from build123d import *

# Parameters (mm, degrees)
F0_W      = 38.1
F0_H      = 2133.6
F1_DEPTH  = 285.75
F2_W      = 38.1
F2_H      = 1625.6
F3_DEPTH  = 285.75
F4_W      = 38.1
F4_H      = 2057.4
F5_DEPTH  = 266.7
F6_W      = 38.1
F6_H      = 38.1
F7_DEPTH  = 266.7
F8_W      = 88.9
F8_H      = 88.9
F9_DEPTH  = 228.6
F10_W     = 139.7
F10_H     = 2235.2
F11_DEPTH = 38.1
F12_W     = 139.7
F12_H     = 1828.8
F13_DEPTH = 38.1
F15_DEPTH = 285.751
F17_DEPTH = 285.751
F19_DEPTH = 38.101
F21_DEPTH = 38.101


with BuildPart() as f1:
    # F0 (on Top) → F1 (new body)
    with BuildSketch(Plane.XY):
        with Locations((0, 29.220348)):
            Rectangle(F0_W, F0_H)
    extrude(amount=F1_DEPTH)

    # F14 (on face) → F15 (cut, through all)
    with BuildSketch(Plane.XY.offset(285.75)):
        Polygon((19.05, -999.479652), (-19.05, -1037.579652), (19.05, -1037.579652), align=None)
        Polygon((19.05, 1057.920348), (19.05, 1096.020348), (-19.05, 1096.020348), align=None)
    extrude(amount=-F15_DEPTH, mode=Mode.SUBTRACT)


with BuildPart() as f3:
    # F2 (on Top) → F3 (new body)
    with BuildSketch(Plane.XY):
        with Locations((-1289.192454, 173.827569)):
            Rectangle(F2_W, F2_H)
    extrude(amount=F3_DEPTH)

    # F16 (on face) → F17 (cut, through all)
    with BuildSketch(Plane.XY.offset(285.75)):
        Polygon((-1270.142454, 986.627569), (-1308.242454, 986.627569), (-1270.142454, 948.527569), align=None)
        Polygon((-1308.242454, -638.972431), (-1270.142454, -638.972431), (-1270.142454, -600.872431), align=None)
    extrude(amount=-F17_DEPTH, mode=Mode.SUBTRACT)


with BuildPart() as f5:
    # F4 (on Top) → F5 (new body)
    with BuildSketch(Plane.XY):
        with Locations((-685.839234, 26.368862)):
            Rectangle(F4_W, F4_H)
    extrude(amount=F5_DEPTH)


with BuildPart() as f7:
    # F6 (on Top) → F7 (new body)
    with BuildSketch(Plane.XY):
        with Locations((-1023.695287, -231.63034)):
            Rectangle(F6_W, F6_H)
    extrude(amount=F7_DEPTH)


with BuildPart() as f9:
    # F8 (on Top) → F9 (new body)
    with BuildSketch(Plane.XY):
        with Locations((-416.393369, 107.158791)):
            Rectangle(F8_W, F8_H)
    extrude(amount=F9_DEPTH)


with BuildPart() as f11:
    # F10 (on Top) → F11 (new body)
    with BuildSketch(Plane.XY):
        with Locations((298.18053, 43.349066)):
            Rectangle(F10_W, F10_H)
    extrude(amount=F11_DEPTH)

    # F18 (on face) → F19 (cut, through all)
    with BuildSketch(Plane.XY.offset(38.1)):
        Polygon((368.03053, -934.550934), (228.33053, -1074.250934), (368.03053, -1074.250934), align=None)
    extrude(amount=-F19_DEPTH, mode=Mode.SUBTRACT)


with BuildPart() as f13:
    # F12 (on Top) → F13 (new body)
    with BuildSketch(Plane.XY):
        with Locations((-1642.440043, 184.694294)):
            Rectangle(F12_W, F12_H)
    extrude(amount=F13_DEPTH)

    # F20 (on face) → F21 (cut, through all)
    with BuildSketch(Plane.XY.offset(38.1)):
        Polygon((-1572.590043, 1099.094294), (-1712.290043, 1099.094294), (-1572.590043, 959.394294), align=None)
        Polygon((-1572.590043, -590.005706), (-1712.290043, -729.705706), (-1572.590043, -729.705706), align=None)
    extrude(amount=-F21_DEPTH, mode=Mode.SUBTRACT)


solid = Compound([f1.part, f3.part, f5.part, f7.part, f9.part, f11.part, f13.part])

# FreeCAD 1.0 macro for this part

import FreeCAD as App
import Part
import Sketcher
from FreeCAD import Vector
Q = App.Units.Quantity

doc = App.newDocument("Part")
params = doc.addObject("Spreadsheet::Sheet", "Params")
for row, (alias, value) in enumerate([
    ("sketch1_height", "84 in"),
    ("sketch1_width", "1.5 in"),
    ("pad1_length", "11.25 in"),
    ("sketch2_width", "1.5 in"),
    ("sketch3_height", "64 in"),
    ("sketch3_width", "1.5 in"),
    ("pad2_length", "11.25 in"),
    ("sketch4_width", "1.5 in"),
    ("sketch5_height", "81 in"),
    ("sketch5_width", "1.5 in"),
    ("pad3_length", "10.5 in"),
    ("sketch6_width", "1.5 in"),
    ("pad4_length", "10.5 in"),
    ("sketch7_width", "3.5 in"),
    ("pad5_length", "9 in"),
    ("sketch8_height", "88 in"),
    ("sketch8_width", "5.5 in"),
    ("pad6_length", "1.5 in"),
    ("sketch9_width", "5.5 in"),
    ("sketch10_height", "72 in"),
    ("sketch10_width", "5.5 in"),
    ("pad7_length", "1.5 in"),
    ("sketch11_width", "5.5 in"),
], start=1):
    params.set(f"A{row}", alias)
    params.set(f"B{row}", "=" + value)
    params.setAlias(f"B{row}", alias)

body = doc.addObject("PartDesign::Body", "Body")

# Sketch on XY plane
sketch1 = doc.addObject("Sketcher::SketchObject", "Sketch")
body.addObject(sketch1)
sketch1.AttachmentSupport = (doc.XY_Plane, [""])
sketch1.MapMode = "FlatFace"
sketch1.addGeometry(Part.LineSegment(Vector(-19, 1096, 0), Vector(-19, -1038, 0)), False)
sketch1.addGeometry(Part.LineSegment(Vector(-19, -1038, 0), Vector(19, -1038, 0)), False)
sketch1.addGeometry(Part.LineSegment(Vector(19, -1038, 0), Vector(19, 1096, 0)), False)
sketch1.addGeometry(Part.LineSegment(Vector(19, 1096, 0), Vector(-19, 1096, 0)), False)
sketch1.addConstraint(Sketcher.Constraint("Coincident", 0, 2, 1, 1))
sketch1.addConstraint(Sketcher.Constraint("Coincident", 1, 2, 2, 1))
sketch1.addConstraint(Sketcher.Constraint("Coincident", 2, 2, 3, 1))
sketch1.addConstraint(Sketcher.Constraint("Coincident", 3, 2, 0, 1))
sketch1.addConstraint(Sketcher.Constraint("Vertical", 0))
sketch1.addConstraint(Sketcher.Constraint("Horizontal", 1))
sketch1.addConstraint(Sketcher.Constraint("Vertical", 2))
sketch1.addConstraint(Sketcher.Constraint("Horizontal", 3))
sketch1.addConstraint(Sketcher.Constraint("DistanceY", 0, 2, 0, 1, Q("84 in")))
sketch1.addConstraint(Sketcher.Constraint("DistanceX", 1, 1, 1, 2, Q("1.5 in")))
sketch1.addConstraint(Sketcher.Constraint("DistanceX", 0, 2, -1, 1, Q("0.75 in")))
sketch1.addConstraint(Sketcher.Constraint("DistanceY", 0, 2, -1, 1, 1037.579652))
sketch1.setExpression("Constraints[8]", "Params.sketch1_height")
sketch1.setExpression("Constraints[9]", "Params.sketch1_width")
pad1 = doc.addObject("PartDesign::Pad", "Pad")
body.addObject(pad1)
pad1.Profile = sketch1
pad1.setExpression("Length", "Params.pad1_length")

# Sketch on XY plane
sketch2 = doc.addObject("Sketcher::SketchObject", "Sketch001")
body.addObject(sketch2)
sketch2.AttachmentSupport = (doc.XY_Plane, [""])
sketch2.MapMode = "FlatFace"
sketch2.AttachmentOffset = App.Placement(Vector(0, 0, 11.25 * 25.4), App.Rotation())
sketch2.addGeometry(Part.LineSegment(Vector(19, -999, 0), Vector(-19, -1038, 0)), False)
sketch2.addGeometry(Part.LineSegment(Vector(-19, -1038, 0), Vector(19, -1038, 0)), False)
sketch2.addGeometry(Part.LineSegment(Vector(19, -1038, 0), Vector(19, -999, 0)), False)
sketch2.addGeometry(Part.LineSegment(Vector(19, 1058, 0), Vector(19, 1096, 0)), False)
sketch2.addGeometry(Part.LineSegment(Vector(19, 1096, 0), Vector(-19, 1096, 0)), False)
sketch2.addGeometry(Part.LineSegment(Vector(-19, 1096, 0), Vector(19, 1058, 0)), False)
sketch2.addConstraint(Sketcher.Constraint("Coincident", 0, 2, 1, 1))
sketch2.addConstraint(Sketcher.Constraint("Coincident", 1, 2, 2, 1))
sketch2.addConstraint(Sketcher.Constraint("Coincident", 2, 2, 0, 1))
sketch2.addConstraint(Sketcher.Constraint("Coincident", 3, 2, 4, 1))
sketch2.addConstraint(Sketcher.Constraint("Coincident", 4, 2, 5, 1))
sketch2.addConstraint(Sketcher.Constraint("Coincident", 5, 2, 3, 1))
sketch2.addConstraint(Sketcher.Constraint("Horizontal", 1))
sketch2.addConstraint(Sketcher.Constraint("Vertical", 2))
sketch2.addConstraint(Sketcher.Constraint("Vertical", 3))
sketch2.addConstraint(Sketcher.Constraint("Horizontal", 4))
sketch2.addConstraint(Sketcher.Constraint("Perpendicular", 0, 5))
sketch2.addConstraint(Sketcher.Constraint("Vertical", 2, 2, 3, 2))
sketch2.addConstraint(Sketcher.Constraint("Vertical", 0, 2, 4, 2))
sketch2.addConstraint(Sketcher.Constraint("Equal", 4, 2))
sketch2.addConstraint(Sketcher.Constraint("DistanceX", 1, 1, 1, 2, Q("1.5 in")))
sketch2.addConstraint(Sketcher.Constraint("DistanceY", 1, 2, 3, 2, Q("84 in")))
sketch2.addConstraint(Sketcher.Constraint("DistanceX", 0, 2, -1, 1, Q("0.75 in")))
sketch2.addConstraint(Sketcher.Constraint("DistanceY", 0, 2, -1, 1, 1037.579652))
sketch2.setExpression("Constraints[14]", "Params.sketch2_width")
pocket1 = doc.addObject("PartDesign::Pocket", "Pocket")
body.addObject(pocket1)
pocket1.Profile = sketch2
pocket1.Type = "ThroughAll"
body2 = doc.addObject("PartDesign::Body", "Body001")

# Sketch on XY plane
sketch3 = doc.addObject("Sketcher::SketchObject", "Sketch002")
body2.addObject(sketch3)
sketch3.AttachmentSupport = (doc.getObject("XY_Plane001"), [""])
sketch3.MapMode = "FlatFace"
sketch3.addGeometry(Part.LineSegment(Vector(-1308, 987, 0), Vector(-1308, -639, 0)), False)
sketch3.addGeometry(Part.LineSegment(Vector(-1308, -639, 0), Vector(-1270, -639, 0)), False)
sketch3.addGeometry(Part.LineSegment(Vector(-1270, -639, 0), Vector(-1270, 987, 0)), False)
sketch3.addGeometry(Part.LineSegment(Vector(-1270, 987, 0), Vector(-1308, 987, 0)), False)
sketch3.addConstraint(Sketcher.Constraint("Coincident", 0, 2, 1, 1))
sketch3.addConstraint(Sketcher.Constraint("Coincident", 1, 2, 2, 1))
sketch3.addConstraint(Sketcher.Constraint("Coincident", 2, 2, 3, 1))
sketch3.addConstraint(Sketcher.Constraint("Coincident", 3, 2, 0, 1))
sketch3.addConstraint(Sketcher.Constraint("Vertical", 0))
sketch3.addConstraint(Sketcher.Constraint("Horizontal", 1))
sketch3.addConstraint(Sketcher.Constraint("Vertical", 2))
sketch3.addConstraint(Sketcher.Constraint("Horizontal", 3))
sketch3.addConstraint(Sketcher.Constraint("DistanceY", 0, 2, 0, 1, Q("64 in")))
sketch3.addConstraint(Sketcher.Constraint("DistanceX", 1, 1, 1, 2, Q("1.5 in")))
sketch3.addConstraint(Sketcher.Constraint("DistanceY", 0, 2, -1, 1, 638.972431))
sketch3.addConstraint(Sketcher.Constraint("DistanceX", 0, 2, -1, 1, 1308.242454))
sketch3.setExpression("Constraints[8]", "Params.sketch3_height")
sketch3.setExpression("Constraints[9]", "Params.sketch3_width")
pad2 = doc.addObject("PartDesign::Pad", "Pad001")
body2.addObject(pad2)
pad2.Profile = sketch3
pad2.setExpression("Length", "Params.pad2_length")

# Sketch on XY plane
sketch4 = doc.addObject("Sketcher::SketchObject", "Sketch003")
body2.addObject(sketch4)
sketch4.AttachmentSupport = (doc.getObject("XY_Plane001"), [""])
sketch4.MapMode = "FlatFace"
sketch4.AttachmentOffset = App.Placement(Vector(0, 0, 11.25 * 25.4), App.Rotation())
sketch4.addGeometry(Part.LineSegment(Vector(-1270, 987, 0), Vector(-1308, 987, 0)), False)
sketch4.addGeometry(Part.LineSegment(Vector(-1308, 987, 0), Vector(-1270, 949, 0)), False)
sketch4.addGeometry(Part.LineSegment(Vector(-1270, 949, 0), Vector(-1270, 987, 0)), False)
sketch4.addGeometry(Part.LineSegment(Vector(-1308, -639, 0), Vector(-1270, -639, 0)), False)
sketch4.addGeometry(Part.LineSegment(Vector(-1270, -639, 0), Vector(-1270, -601, 0)), False)
sketch4.addGeometry(Part.LineSegment(Vector(-1270, -601, 0), Vector(-1308, -639, 0)), False)
sketch4.addConstraint(Sketcher.Constraint("Coincident", 0, 2, 1, 1))
sketch4.addConstraint(Sketcher.Constraint("Coincident", 1, 2, 2, 1))
sketch4.addConstraint(Sketcher.Constraint("Coincident", 2, 2, 0, 1))
sketch4.addConstraint(Sketcher.Constraint("Coincident", 3, 2, 4, 1))
sketch4.addConstraint(Sketcher.Constraint("Coincident", 4, 2, 5, 1))
sketch4.addConstraint(Sketcher.Constraint("Coincident", 5, 2, 3, 1))
sketch4.addConstraint(Sketcher.Constraint("Horizontal", 0))
sketch4.addConstraint(Sketcher.Constraint("Vertical", 2))
sketch4.addConstraint(Sketcher.Constraint("Horizontal", 3))
sketch4.addConstraint(Sketcher.Constraint("Vertical", 4))
sketch4.addConstraint(Sketcher.Constraint("Perpendicular", 1, 5))
sketch4.addConstraint(Sketcher.Constraint("Vertical", 2, 2, 3, 2))
sketch4.addConstraint(Sketcher.Constraint("Vertical", 0, 2, 5, 2))
sketch4.addConstraint(Sketcher.Constraint("Equal", 3, 2))
sketch4.addConstraint(Sketcher.Constraint("DistanceX", 0, 2, 0, 1, Q("1.5 in")))
sketch4.addConstraint(Sketcher.Constraint("DistanceY", 3, 2, 2, 2, Q("64 in")))
sketch4.addConstraint(Sketcher.Constraint("DistanceY", -1, 1, 0, 2, 986.627569))
sketch4.addConstraint(Sketcher.Constraint("DistanceX", 0, 2, -1, 1, 1308.242454))
sketch4.setExpression("Constraints[14]", "Params.sketch4_width")
pocket2 = doc.addObject("PartDesign::Pocket", "Pocket001")
body2.addObject(pocket2)
pocket2.Profile = sketch4
pocket2.Type = "ThroughAll"
body3 = doc.addObject("PartDesign::Body", "Body002")

# Sketch on XY plane
sketch5 = doc.addObject("Sketcher::SketchObject", "Sketch004")
body3.addObject(sketch5)
sketch5.AttachmentSupport = (doc.getObject("XY_Plane002"), [""])
sketch5.MapMode = "FlatFace"
sketch5.addGeometry(Part.LineSegment(Vector(-705, 1055, 0), Vector(-705, -1002, 0)), False)
sketch5.addGeometry(Part.LineSegment(Vector(-705, -1002, 0), Vector(-667, -1002, 0)), False)
sketch5.addGeometry(Part.LineSegment(Vector(-667, -1002, 0), Vector(-667, 1055, 0)), False)
sketch5.addGeometry(Part.LineSegment(Vector(-667, 1055, 0), Vector(-705, 1055, 0)), False)
sketch5.addConstraint(Sketcher.Constraint("Coincident", 0, 2, 1, 1))
sketch5.addConstraint(Sketcher.Constraint("Coincident", 1, 2, 2, 1))
sketch5.addConstraint(Sketcher.Constraint("Coincident", 2, 2, 3, 1))
sketch5.addConstraint(Sketcher.Constraint("Coincident", 3, 2, 0, 1))
sketch5.addConstraint(Sketcher.Constraint("Vertical", 0))
sketch5.addConstraint(Sketcher.Constraint("Horizontal", 1))
sketch5.addConstraint(Sketcher.Constraint("Vertical", 2))
sketch5.addConstraint(Sketcher.Constraint("Horizontal", 3))
sketch5.addConstraint(Sketcher.Constraint("DistanceY", 0, 2, 0, 1, Q("81 in")))
sketch5.addConstraint(Sketcher.Constraint("DistanceX", 1, 1, 1, 2, Q("1.5 in")))
sketch5.addConstraint(Sketcher.Constraint("DistanceY", 0, 2, -1, 1, 1002.331138))
sketch5.addConstraint(Sketcher.Constraint("DistanceX", 0, 2, -1, 1, 704.889234))
sketch5.setExpression("Constraints[8]", "Params.sketch5_height")
sketch5.setExpression("Constraints[9]", "Params.sketch5_width")
pad3 = doc.addObject("PartDesign::Pad", "Pad002")
body3.addObject(pad3)
pad3.Profile = sketch5
pad3.setExpression("Length", "Params.pad3_length")
body4 = doc.addObject("PartDesign::Body", "Body003")

# Sketch on XY plane
sketch6 = doc.addObject("Sketcher::SketchObject", "Sketch005")
body4.addObject(sketch6)
sketch6.AttachmentSupport = (doc.getObject("XY_Plane003"), [""])
sketch6.MapMode = "FlatFace"
sketch6.addGeometry(Part.LineSegment(Vector(-1043, -213, 0), Vector(-1043, -251, 0)), False)
sketch6.addGeometry(Part.LineSegment(Vector(-1043, -251, 0), Vector(-1005, -251, 0)), False)
sketch6.addGeometry(Part.LineSegment(Vector(-1005, -251, 0), Vector(-1005, -213, 0)), False)
sketch6.addGeometry(Part.LineSegment(Vector(-1005, -213, 0), Vector(-1043, -213, 0)), False)
sketch6.addConstraint(Sketcher.Constraint("Coincident", 0, 2, 1, 1))
sketch6.addConstraint(Sketcher.Constraint("Coincident", 1, 2, 2, 1))
sketch6.addConstraint(Sketcher.Constraint("Coincident", 2, 2, 3, 1))
sketch6.addConstraint(Sketcher.Constraint("Coincident", 3, 2, 0, 1))
sketch6.addConstraint(Sketcher.Constraint("Vertical", 0))
sketch6.addConstraint(Sketcher.Constraint("Horizontal", 1))
sketch6.addConstraint(Sketcher.Constraint("Vertical", 2))
sketch6.addConstraint(Sketcher.Constraint("Horizontal", 3))
sketch6.addConstraint(Sketcher.Constraint("Equal", 3, 0))
sketch6.addConstraint(Sketcher.Constraint("DistanceX", 1, 1, 1, 2, Q("1.5 in")))
sketch6.addConstraint(Sketcher.Constraint("DistanceY", 0, 2, -1, 1, 250.68034))
sketch6.addConstraint(Sketcher.Constraint("DistanceX", 0, 2, -1, 1, 1042.745287))
sketch6.setExpression("Constraints[9]", "Params.sketch6_width")
pad4 = doc.addObject("PartDesign::Pad", "Pad003")
body4.addObject(pad4)
pad4.Profile = sketch6
pad4.setExpression("Length", "Params.pad4_length")
body5 = doc.addObject("PartDesign::Body", "Body004")

# Sketch on XY plane
sketch7 = doc.addObject("Sketcher::SketchObject", "Sketch006")
body5.addObject(sketch7)
sketch7.AttachmentSupport = (doc.getObject("XY_Plane004"), [""])
sketch7.MapMode = "FlatFace"
sketch7.addGeometry(Part.LineSegment(Vector(-461, 152, 0), Vector(-461, 63, 0)), False)
sketch7.addGeometry(Part.LineSegment(Vector(-461, 63, 0), Vector(-372, 63, 0)), False)
sketch7.addGeometry(Part.LineSegment(Vector(-372, 63, 0), Vector(-372, 152, 0)), False)
sketch7.addGeometry(Part.LineSegment(Vector(-372, 152, 0), Vector(-461, 152, 0)), False)
sketch7.addConstraint(Sketcher.Constraint("Coincident", 0, 2, 1, 1))
sketch7.addConstraint(Sketcher.Constraint("Coincident", 1, 2, 2, 1))
sketch7.addConstraint(Sketcher.Constraint("Coincident", 2, 2, 3, 1))
sketch7.addConstraint(Sketcher.Constraint("Coincident", 3, 2, 0, 1))
sketch7.addConstraint(Sketcher.Constraint("Vertical", 0))
sketch7.addConstraint(Sketcher.Constraint("Horizontal", 1))
sketch7.addConstraint(Sketcher.Constraint("Vertical", 2))
sketch7.addConstraint(Sketcher.Constraint("Horizontal", 3))
sketch7.addConstraint(Sketcher.Constraint("Equal", 3, 0))
sketch7.addConstraint(Sketcher.Constraint("DistanceX", 1, 1, 1, 2, Q("3.5 in")))
sketch7.addConstraint(Sketcher.Constraint("DistanceX", 0, 2, -1, 1, 460.843369))
sketch7.addConstraint(Sketcher.Constraint("DistanceY", -1, 1, 0, 2, 62.708791))
sketch7.setExpression("Constraints[9]", "Params.sketch7_width")
pad5 = doc.addObject("PartDesign::Pad", "Pad004")
body5.addObject(pad5)
pad5.Profile = sketch7
pad5.setExpression("Length", "Params.pad5_length")
body6 = doc.addObject("PartDesign::Body", "Body005")

# Sketch on XY plane
sketch8 = doc.addObject("Sketcher::SketchObject", "Sketch007")
body6.addObject(sketch8)
sketch8.AttachmentSupport = (doc.getObject("XY_Plane005"), [""])
sketch8.MapMode = "FlatFace"
sketch8.addGeometry(Part.LineSegment(Vector(228, 1161, 0), Vector(228, -1074, 0)), False)
sketch8.addGeometry(Part.LineSegment(Vector(228, -1074, 0), Vector(368, -1074, 0)), False)
sketch8.addGeometry(Part.LineSegment(Vector(368, -1074, 0), Vector(368, 1161, 0)), False)
sketch8.addGeometry(Part.LineSegment(Vector(368, 1161, 0), Vector(228, 1161, 0)), False)
sketch8.addConstraint(Sketcher.Constraint("Coincident", 0, 2, 1, 1))
sketch8.addConstraint(Sketcher.Constraint("Coincident", 1, 2, 2, 1))
sketch8.addConstraint(Sketcher.Constraint("Coincident", 2, 2, 3, 1))
sketch8.addConstraint(Sketcher.Constraint("Coincident", 3, 2, 0, 1))
sketch8.addConstraint(Sketcher.Constraint("Vertical", 0))
sketch8.addConstraint(Sketcher.Constraint("Horizontal", 1))
sketch8.addConstraint(Sketcher.Constraint("Vertical", 2))
sketch8.addConstraint(Sketcher.Constraint("Horizontal", 3))
sketch8.addConstraint(Sketcher.Constraint("DistanceY", 0, 2, 0, 1, Q("88 in")))
sketch8.addConstraint(Sketcher.Constraint("DistanceX", 1, 1, 1, 2, Q("5.5 in")))
sketch8.addConstraint(Sketcher.Constraint("DistanceX", -1, 1, 0, 2, 228.33053))
sketch8.addConstraint(Sketcher.Constraint("DistanceY", 0, 2, -1, 1, 1074.250934))
sketch8.setExpression("Constraints[8]", "Params.sketch8_height")
sketch8.setExpression("Constraints[9]", "Params.sketch8_width")
pad6 = doc.addObject("PartDesign::Pad", "Pad005")
body6.addObject(pad6)
pad6.Profile = sketch8
pad6.setExpression("Length", "Params.pad6_length")

# Sketch on XY plane
sketch9 = doc.addObject("Sketcher::SketchObject", "Sketch008")
body6.addObject(sketch9)
sketch9.AttachmentSupport = (doc.getObject("XY_Plane005"), [""])
sketch9.MapMode = "FlatFace"
sketch9.AttachmentOffset = App.Placement(Vector(0, 0, 1.5 * 25.4), App.Rotation())
sketch9.addGeometry(Part.LineSegment(Vector(368, -935, 0), Vector(228, -1074, 0)), False)
sketch9.addGeometry(Part.LineSegment(Vector(228, -1074, 0), Vector(368, -1074, 0)), False)
sketch9.addGeometry(Part.LineSegment(Vector(368, -1074, 0), Vector(368, -935, 0)), False)
sketch9.addConstraint(Sketcher.Constraint("Coincident", 0, 2, 1, 1))
sketch9.addConstraint(Sketcher.Constraint("Coincident", 1, 2, 2, 1))
sketch9.addConstraint(Sketcher.Constraint("Coincident", 2, 2, 0, 1))
sketch9.addConstraint(Sketcher.Constraint("Horizontal", 1))
sketch9.addConstraint(Sketcher.Constraint("Vertical", 2))
sketch9.addConstraint(Sketcher.Constraint("Equal", 1, 2))
sketch9.addConstraint(Sketcher.Constraint("DistanceX", 1, 1, 1, 2, Q("5.5 in")))
sketch9.addConstraint(Sketcher.Constraint("DistanceX", -1, 1, 0, 2, 228.33053))
sketch9.addConstraint(Sketcher.Constraint("DistanceY", 0, 2, -1, 1, 1074.250934))
sketch9.setExpression("Constraints[6]", "Params.sketch9_width")
pocket3 = doc.addObject("PartDesign::Pocket", "Pocket002")
body6.addObject(pocket3)
pocket3.Profile = sketch9
pocket3.Type = "ThroughAll"
body7 = doc.addObject("PartDesign::Body", "Body006")

# Sketch on XY plane
sketch10 = doc.addObject("Sketcher::SketchObject", "Sketch009")
body7.addObject(sketch10)
sketch10.AttachmentSupport = (doc.getObject("XY_Plane006"), [""])
sketch10.MapMode = "FlatFace"
sketch10.addGeometry(Part.LineSegment(Vector(-1712, 1099, 0), Vector(-1712, -730, 0)), False)
sketch10.addGeometry(Part.LineSegment(Vector(-1712, -730, 0), Vector(-1573, -730, 0)), False)
sketch10.addGeometry(Part.LineSegment(Vector(-1573, -730, 0), Vector(-1573, 1099, 0)), False)
sketch10.addGeometry(Part.LineSegment(Vector(-1573, 1099, 0), Vector(-1712, 1099, 0)), False)
sketch10.addConstraint(Sketcher.Constraint("Coincident", 0, 2, 1, 1))
sketch10.addConstraint(Sketcher.Constraint("Coincident", 1, 2, 2, 1))
sketch10.addConstraint(Sketcher.Constraint("Coincident", 2, 2, 3, 1))
sketch10.addConstraint(Sketcher.Constraint("Coincident", 3, 2, 0, 1))
sketch10.addConstraint(Sketcher.Constraint("Vertical", 0))
sketch10.addConstraint(Sketcher.Constraint("Horizontal", 1))
sketch10.addConstraint(Sketcher.Constraint("Vertical", 2))
sketch10.addConstraint(Sketcher.Constraint("Horizontal", 3))
sketch10.addConstraint(Sketcher.Constraint("DistanceY", 0, 2, 0, 1, Q("72 in")))
sketch10.addConstraint(Sketcher.Constraint("DistanceX", 1, 1, 1, 2, Q("5.5 in")))
sketch10.addConstraint(Sketcher.Constraint("DistanceX", 0, 2, -1, 1, 1712.290043))
sketch10.addConstraint(Sketcher.Constraint("DistanceY", 0, 2, -1, 1, 729.705706))
sketch10.setExpression("Constraints[8]", "Params.sketch10_height")
sketch10.setExpression("Constraints[9]", "Params.sketch10_width")
pad7 = doc.addObject("PartDesign::Pad", "Pad006")
body7.addObject(pad7)
pad7.Profile = sketch10
pad7.setExpression("Length", "Params.pad7_length")

# Sketch on XY plane
sketch11 = doc.addObject("Sketcher::SketchObject", "Sketch010")
body7.addObject(sketch11)
sketch11.AttachmentSupport = (doc.getObject("XY_Plane006"), [""])
sketch11.MapMode = "FlatFace"
sketch11.AttachmentOffset = App.Placement(Vector(0, 0, 1.5 * 25.4), App.Rotation())
sketch11.addGeometry(Part.LineSegment(Vector(-1573, 1099, 0), Vector(-1712, 1099, 0)), False)
sketch11.addGeometry(Part.LineSegment(Vector(-1712, 1099, 0), Vector(-1573, 959, 0)), False)
sketch11.addGeometry(Part.LineSegment(Vector(-1573, 959, 0), Vector(-1573, 1099, 0)), False)
sketch11.addGeometry(Part.LineSegment(Vector(-1573, -590, 0), Vector(-1712, -730, 0)), False)
sketch11.addGeometry(Part.LineSegment(Vector(-1712, -730, 0), Vector(-1573, -730, 0)), False)
sketch11.addGeometry(Part.LineSegment(Vector(-1573, -730, 0), Vector(-1573, -590, 0)), False)
sketch11.addConstraint(Sketcher.Constraint("Coincident", 0, 2, 1, 1))
sketch11.addConstraint(Sketcher.Constraint("Coincident", 1, 2, 2, 1))
sketch11.addConstraint(Sketcher.Constraint("Coincident", 2, 2, 0, 1))
sketch11.addConstraint(Sketcher.Constraint("Coincident", 3, 2, 4, 1))
sketch11.addConstraint(Sketcher.Constraint("Coincident", 4, 2, 5, 1))
sketch11.addConstraint(Sketcher.Constraint("Coincident", 5, 2, 3, 1))
sketch11.addConstraint(Sketcher.Constraint("Horizontal", 0))
sketch11.addConstraint(Sketcher.Constraint("Vertical", 2))
sketch11.addConstraint(Sketcher.Constraint("Horizontal", 4))
sketch11.addConstraint(Sketcher.Constraint("Vertical", 5))
sketch11.addConstraint(Sketcher.Constraint("Perpendicular", 1, 3))
sketch11.addConstraint(Sketcher.Constraint("Vertical", 0, 2, 3, 2))
sketch11.addConstraint(Sketcher.Constraint("Vertical", 2, 2, 4, 2))
sketch11.addConstraint(Sketcher.Constraint("Equal", 4, 2))
sketch11.addConstraint(Sketcher.Constraint("DistanceX", 0, 2, 0, 1, Q("5.5 in")))
sketch11.addConstraint(Sketcher.Constraint("DistanceY", 3, 2, 0, 2, Q("72 in")))
sketch11.addConstraint(Sketcher.Constraint("DistanceX", 0, 2, -1, 1, 1712.290043))
sketch11.addConstraint(Sketcher.Constraint("DistanceY", -1, 1, 0, 2, 1099.094294))
sketch11.setExpression("Constraints[14]", "Params.sketch11_width")
pocket4 = doc.addObject("PartDesign::Pocket", "Pocket003")
body7.addObject(pocket4)
pocket4.Profile = sketch11
pocket4.Type = "ThroughAll"

doc.recompute()
